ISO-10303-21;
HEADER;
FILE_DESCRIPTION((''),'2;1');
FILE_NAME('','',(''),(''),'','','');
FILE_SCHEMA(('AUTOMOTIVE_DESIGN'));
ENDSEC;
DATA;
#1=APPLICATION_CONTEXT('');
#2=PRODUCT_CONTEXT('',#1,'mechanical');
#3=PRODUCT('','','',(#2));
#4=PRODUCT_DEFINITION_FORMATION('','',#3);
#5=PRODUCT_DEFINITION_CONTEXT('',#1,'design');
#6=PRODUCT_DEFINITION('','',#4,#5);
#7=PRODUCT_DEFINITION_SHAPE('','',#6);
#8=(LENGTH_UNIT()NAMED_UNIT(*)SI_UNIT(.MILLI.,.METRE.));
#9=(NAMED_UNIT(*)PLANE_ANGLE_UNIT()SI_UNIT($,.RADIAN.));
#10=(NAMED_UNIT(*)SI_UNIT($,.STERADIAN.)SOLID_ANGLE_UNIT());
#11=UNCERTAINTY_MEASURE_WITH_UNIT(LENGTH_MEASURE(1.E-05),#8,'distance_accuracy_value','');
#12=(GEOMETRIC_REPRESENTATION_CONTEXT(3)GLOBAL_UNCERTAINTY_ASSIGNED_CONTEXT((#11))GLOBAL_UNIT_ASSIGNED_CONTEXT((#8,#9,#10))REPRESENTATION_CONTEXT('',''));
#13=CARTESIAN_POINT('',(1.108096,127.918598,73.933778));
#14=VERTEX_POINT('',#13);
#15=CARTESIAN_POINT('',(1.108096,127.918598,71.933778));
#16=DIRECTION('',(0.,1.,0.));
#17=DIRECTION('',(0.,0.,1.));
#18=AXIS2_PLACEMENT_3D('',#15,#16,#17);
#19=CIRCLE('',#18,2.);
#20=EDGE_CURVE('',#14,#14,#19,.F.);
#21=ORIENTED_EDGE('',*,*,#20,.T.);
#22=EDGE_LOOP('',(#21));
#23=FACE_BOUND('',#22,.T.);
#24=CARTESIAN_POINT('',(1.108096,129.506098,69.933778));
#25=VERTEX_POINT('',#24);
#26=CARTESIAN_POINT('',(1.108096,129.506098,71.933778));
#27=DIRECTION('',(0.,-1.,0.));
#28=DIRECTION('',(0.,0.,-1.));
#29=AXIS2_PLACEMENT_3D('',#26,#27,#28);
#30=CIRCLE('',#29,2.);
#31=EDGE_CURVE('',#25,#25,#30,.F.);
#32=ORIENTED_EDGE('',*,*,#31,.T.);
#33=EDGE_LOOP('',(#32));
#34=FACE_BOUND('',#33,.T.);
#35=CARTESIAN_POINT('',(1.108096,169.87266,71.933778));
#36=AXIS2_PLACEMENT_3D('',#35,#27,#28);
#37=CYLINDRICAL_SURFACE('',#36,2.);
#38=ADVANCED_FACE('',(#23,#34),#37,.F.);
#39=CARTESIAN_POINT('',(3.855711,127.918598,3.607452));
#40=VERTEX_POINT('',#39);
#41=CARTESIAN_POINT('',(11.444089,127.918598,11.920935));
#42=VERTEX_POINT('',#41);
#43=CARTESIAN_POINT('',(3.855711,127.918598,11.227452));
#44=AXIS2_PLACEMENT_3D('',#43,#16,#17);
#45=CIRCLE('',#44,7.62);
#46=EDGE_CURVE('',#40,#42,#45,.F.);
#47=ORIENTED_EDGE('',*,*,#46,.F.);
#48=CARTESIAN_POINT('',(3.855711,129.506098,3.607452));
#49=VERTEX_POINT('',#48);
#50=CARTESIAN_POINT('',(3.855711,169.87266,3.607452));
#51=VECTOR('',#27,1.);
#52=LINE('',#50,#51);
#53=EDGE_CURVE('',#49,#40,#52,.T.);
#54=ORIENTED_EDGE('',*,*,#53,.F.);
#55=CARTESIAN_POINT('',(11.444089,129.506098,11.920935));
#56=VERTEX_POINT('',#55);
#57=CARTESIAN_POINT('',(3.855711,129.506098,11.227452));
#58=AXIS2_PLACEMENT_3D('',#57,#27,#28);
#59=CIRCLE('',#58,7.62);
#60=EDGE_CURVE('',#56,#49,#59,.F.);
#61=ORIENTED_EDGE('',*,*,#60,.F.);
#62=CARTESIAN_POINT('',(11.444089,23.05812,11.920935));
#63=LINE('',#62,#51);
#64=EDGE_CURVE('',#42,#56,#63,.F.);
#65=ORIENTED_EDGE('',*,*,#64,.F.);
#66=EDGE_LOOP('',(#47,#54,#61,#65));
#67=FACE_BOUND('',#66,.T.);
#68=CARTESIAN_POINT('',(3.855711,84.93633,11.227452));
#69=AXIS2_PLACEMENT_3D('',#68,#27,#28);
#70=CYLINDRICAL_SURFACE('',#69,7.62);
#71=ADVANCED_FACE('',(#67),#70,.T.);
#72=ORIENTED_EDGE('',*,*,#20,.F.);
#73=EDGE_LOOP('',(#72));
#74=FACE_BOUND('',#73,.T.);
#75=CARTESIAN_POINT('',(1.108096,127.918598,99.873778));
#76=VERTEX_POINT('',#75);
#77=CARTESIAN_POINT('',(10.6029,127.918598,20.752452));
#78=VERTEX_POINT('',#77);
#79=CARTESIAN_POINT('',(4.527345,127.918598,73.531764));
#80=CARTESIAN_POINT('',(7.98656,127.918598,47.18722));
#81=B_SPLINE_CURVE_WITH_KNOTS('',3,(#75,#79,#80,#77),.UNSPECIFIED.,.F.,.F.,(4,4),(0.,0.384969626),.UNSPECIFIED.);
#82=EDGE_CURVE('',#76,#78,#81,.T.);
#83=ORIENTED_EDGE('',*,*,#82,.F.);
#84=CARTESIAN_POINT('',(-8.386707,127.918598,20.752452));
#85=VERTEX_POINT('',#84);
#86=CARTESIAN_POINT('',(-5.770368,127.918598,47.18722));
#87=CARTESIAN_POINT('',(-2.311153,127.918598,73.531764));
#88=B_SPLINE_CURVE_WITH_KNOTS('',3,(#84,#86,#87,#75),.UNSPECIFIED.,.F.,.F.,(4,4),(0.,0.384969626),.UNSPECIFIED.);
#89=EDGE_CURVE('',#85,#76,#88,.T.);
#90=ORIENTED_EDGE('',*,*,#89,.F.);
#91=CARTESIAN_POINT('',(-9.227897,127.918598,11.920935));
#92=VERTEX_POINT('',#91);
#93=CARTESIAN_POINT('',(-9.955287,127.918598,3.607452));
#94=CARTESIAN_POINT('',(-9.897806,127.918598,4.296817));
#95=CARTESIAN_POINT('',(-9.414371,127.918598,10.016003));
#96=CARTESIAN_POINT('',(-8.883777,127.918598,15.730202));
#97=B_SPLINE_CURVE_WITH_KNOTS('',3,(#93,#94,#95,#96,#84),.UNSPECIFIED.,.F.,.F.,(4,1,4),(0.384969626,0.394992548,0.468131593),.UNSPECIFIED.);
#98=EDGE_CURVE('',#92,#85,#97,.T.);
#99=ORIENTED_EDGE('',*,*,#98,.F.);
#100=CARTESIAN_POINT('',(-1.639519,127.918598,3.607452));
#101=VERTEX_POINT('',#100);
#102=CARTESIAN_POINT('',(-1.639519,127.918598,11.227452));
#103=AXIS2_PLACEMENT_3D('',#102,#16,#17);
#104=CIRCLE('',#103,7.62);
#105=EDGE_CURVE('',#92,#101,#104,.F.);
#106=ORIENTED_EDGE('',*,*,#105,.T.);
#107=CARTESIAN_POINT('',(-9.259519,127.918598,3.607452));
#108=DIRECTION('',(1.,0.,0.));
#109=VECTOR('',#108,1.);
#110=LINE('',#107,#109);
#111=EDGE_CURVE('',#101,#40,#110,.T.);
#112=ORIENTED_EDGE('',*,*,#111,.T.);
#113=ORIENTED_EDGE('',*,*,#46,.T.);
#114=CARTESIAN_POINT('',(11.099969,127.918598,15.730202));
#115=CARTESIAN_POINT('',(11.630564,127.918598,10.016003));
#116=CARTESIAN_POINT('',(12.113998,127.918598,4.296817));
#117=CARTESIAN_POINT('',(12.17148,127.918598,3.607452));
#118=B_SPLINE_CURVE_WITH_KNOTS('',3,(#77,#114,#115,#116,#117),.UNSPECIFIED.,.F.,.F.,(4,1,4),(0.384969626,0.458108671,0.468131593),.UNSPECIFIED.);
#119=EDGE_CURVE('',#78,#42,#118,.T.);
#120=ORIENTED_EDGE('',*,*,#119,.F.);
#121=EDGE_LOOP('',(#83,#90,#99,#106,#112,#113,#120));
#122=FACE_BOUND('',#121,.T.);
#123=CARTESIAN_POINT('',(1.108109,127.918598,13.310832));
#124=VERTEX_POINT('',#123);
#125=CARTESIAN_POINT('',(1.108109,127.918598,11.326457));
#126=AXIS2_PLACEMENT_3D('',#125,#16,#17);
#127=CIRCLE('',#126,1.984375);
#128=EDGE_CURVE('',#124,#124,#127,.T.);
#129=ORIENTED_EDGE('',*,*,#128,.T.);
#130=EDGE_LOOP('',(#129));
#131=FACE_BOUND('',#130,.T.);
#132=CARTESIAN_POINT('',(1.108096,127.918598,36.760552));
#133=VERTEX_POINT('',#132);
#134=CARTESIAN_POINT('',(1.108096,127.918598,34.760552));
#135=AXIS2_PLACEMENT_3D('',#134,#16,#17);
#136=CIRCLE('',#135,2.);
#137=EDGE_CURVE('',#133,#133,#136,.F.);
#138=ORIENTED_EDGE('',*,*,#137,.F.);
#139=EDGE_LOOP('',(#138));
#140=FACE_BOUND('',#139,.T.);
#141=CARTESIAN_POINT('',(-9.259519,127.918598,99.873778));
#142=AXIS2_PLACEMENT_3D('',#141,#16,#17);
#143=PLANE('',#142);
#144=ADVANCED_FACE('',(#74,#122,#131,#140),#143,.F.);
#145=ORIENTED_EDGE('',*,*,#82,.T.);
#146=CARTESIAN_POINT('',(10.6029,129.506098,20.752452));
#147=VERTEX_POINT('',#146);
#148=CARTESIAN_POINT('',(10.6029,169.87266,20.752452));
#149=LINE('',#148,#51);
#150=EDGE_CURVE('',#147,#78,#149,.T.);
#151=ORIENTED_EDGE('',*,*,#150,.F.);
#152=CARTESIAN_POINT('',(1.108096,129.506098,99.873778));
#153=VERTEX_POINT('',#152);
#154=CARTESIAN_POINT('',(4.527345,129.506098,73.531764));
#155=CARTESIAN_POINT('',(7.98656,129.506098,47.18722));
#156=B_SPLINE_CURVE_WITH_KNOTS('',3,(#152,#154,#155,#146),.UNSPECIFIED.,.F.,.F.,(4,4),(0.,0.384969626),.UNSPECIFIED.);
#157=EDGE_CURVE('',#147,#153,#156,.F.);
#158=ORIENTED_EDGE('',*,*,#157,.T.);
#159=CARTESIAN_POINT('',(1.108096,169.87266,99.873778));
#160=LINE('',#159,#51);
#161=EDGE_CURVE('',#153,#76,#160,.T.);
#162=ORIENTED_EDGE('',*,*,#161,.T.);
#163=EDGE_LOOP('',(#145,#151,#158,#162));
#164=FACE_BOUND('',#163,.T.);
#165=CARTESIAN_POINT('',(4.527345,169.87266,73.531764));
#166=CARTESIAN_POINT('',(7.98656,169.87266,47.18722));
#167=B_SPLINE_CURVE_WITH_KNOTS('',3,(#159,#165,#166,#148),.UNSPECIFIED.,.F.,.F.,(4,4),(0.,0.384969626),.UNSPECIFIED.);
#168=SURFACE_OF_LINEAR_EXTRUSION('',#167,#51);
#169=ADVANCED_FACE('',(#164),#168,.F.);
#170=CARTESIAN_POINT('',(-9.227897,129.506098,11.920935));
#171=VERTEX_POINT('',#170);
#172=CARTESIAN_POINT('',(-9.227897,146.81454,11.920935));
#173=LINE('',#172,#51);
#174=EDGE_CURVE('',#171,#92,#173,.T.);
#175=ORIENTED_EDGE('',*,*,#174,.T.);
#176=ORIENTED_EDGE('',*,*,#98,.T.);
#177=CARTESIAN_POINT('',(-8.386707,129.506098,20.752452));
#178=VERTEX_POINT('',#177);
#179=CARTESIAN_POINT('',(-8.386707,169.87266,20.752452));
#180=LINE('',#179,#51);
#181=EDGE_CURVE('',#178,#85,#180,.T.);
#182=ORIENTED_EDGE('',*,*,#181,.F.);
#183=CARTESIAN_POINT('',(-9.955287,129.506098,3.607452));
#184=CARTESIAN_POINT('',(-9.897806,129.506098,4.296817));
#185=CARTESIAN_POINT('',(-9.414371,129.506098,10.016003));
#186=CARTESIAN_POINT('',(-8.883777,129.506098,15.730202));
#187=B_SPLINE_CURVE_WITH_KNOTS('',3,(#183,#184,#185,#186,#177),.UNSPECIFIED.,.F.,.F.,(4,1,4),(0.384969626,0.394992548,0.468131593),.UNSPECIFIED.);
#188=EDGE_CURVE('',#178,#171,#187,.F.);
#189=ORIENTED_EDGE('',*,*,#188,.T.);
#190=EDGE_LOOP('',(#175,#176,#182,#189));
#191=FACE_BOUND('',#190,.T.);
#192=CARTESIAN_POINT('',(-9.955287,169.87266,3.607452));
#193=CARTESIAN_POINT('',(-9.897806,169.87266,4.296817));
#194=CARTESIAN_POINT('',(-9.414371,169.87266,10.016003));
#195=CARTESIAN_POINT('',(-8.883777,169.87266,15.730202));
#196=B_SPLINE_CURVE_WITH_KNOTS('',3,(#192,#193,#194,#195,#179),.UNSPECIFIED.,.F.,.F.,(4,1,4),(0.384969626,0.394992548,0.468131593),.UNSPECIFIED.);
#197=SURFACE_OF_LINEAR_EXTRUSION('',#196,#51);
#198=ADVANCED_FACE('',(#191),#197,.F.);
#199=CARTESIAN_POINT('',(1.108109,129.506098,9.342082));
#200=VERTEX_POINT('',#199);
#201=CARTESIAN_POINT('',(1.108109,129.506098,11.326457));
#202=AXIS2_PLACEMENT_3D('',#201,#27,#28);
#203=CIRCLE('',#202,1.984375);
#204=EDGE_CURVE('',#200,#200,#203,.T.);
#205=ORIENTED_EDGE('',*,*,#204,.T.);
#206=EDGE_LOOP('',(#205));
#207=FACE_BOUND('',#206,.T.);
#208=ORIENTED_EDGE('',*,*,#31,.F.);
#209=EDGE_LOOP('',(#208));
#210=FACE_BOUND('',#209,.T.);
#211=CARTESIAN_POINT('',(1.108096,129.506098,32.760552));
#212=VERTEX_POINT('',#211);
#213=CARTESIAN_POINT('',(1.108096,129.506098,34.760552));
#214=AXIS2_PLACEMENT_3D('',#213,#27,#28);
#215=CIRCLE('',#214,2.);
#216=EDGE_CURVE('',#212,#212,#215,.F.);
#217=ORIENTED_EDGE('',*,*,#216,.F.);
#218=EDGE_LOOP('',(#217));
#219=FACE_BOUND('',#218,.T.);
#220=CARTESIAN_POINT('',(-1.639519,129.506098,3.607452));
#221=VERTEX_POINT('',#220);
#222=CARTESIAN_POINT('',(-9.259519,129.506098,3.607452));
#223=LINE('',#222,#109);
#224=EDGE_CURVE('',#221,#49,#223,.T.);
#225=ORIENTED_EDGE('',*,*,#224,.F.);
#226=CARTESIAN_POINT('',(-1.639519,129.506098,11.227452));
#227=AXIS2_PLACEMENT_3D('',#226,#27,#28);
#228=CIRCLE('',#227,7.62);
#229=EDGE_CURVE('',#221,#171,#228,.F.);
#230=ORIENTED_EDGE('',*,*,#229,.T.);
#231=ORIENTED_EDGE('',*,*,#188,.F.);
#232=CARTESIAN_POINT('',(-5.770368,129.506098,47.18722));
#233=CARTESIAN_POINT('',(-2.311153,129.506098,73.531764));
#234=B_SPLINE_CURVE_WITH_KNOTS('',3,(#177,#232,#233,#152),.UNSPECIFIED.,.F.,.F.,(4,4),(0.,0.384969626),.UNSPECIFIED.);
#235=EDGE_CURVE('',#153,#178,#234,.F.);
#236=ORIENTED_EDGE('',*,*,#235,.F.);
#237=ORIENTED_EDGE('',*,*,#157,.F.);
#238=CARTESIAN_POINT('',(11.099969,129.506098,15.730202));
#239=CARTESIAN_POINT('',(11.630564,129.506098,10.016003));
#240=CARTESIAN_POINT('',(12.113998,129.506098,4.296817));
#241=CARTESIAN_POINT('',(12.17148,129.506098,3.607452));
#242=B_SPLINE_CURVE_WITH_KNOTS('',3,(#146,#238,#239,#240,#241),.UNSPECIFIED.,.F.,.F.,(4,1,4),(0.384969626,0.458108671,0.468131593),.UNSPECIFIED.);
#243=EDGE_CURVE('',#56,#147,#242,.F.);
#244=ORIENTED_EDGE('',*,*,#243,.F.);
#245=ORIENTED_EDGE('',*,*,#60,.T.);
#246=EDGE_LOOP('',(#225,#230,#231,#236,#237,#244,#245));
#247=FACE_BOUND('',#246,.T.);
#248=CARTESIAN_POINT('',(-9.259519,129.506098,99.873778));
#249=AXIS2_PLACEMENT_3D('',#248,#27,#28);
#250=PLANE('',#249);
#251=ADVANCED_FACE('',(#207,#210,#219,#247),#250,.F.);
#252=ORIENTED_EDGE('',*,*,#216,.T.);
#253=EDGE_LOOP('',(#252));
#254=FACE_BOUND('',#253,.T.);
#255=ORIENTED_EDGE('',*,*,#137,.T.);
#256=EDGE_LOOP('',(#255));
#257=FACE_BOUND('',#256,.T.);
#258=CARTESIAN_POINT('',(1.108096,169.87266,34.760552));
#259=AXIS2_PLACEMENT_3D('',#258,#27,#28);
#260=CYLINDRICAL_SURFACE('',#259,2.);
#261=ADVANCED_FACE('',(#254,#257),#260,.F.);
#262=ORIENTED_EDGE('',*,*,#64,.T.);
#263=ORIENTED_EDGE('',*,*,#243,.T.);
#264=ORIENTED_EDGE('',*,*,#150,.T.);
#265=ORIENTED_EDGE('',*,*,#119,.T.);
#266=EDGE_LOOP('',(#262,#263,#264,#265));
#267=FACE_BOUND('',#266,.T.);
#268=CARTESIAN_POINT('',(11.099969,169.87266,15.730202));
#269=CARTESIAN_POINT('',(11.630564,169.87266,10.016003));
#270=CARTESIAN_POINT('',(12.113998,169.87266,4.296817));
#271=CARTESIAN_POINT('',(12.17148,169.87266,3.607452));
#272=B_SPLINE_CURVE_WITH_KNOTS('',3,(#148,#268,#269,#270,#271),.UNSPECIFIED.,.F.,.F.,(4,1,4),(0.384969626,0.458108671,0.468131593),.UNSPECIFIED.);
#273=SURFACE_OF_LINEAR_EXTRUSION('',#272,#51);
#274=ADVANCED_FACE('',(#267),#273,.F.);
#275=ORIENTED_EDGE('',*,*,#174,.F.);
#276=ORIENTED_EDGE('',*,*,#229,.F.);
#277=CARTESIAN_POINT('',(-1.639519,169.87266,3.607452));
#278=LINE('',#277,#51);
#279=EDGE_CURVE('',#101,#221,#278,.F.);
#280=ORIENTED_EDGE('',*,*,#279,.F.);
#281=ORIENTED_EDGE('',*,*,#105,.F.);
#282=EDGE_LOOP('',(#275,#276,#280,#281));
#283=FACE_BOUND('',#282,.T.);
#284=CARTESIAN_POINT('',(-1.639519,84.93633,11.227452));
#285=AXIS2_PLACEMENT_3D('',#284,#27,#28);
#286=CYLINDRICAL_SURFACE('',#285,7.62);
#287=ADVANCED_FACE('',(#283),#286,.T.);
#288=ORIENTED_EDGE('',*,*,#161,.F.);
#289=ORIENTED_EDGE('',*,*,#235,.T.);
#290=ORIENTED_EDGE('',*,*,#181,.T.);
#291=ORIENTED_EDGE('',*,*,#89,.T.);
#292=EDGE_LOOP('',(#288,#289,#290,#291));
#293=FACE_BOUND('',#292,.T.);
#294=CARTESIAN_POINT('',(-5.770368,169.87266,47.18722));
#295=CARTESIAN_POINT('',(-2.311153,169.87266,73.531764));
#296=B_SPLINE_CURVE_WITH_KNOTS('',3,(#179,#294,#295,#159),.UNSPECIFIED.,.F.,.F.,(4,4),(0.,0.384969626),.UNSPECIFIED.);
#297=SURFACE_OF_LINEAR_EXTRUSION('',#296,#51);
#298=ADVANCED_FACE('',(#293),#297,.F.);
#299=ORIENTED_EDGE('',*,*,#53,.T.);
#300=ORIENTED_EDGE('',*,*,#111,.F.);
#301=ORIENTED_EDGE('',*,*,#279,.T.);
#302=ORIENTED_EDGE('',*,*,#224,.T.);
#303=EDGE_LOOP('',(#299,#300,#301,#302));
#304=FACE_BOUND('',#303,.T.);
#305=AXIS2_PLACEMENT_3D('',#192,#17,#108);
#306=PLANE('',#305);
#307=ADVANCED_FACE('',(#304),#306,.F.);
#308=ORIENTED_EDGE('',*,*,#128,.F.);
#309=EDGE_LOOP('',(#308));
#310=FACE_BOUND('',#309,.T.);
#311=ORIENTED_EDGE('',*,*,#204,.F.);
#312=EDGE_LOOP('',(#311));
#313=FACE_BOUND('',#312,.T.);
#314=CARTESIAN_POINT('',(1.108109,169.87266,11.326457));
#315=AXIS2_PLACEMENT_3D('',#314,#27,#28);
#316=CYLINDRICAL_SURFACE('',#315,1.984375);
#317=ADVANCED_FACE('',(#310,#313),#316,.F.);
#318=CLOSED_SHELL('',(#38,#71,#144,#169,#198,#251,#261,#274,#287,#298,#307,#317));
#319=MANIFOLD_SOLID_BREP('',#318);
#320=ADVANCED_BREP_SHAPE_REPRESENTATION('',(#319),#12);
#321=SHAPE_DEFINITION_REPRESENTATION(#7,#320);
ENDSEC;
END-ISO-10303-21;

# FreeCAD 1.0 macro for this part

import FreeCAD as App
import Part
import Sketcher
Q = App.Units.Quantity


def edges_at(feature, points):
    """Names of the edges that pass closest to the given points."""
    edges = feature.Shape.Edges
    near = lambda p: min(range(len(edges)), key=lambda i: edges[i].distToShape(Part.Vertex(*p))[0])
    return sorted({f"Edge{near(p) + 1}" for p in points})

doc = App.newDocument("Part")
body = doc.addObject("PartDesign::Body", "Body")

# Sketch on XZ plane
sketch1 = body.newObject("Sketcher::SketchObject", "Sketch")
sketch1.AttachmentSupport = (doc.getObject("XZ_Plane"), [""])
sketch1.MapMode = "FlatFace"
sketch1.addGeometry([
    Part.LineSegment(App.Vector(12.17148, 3.607452, 0), App.Vector(-9.955287, 3.607452, 0)),
    Part.BSplineCurve([App.Vector(1.108096, 99.873778, 0), App.Vector(-2.960764, 68.527136, 0), App.Vector(-7.176479, 36.491002, 0), App.Vector(-9.897806, 4.296817, 0), App.Vector(-9.955287, 3.607452, 0)], [4, 1, 4], [0, 0.458108671, 0.468131593], False, 3, [1, 1, 1, 1, 1], False),
    Part.BSplineCurve([App.Vector(1.108096, 99.873778, 0), App.Vector(5.176956, 68.527136, 0), App.Vector(9.392672, 36.491002, 0), App.Vector(12.113998, 4.296817, 0), App.Vector(12.17148, 3.607452, 0)], [4, 1, 4], [0, 0.458108671, 0.468131593], False, 3, [1, 1, 1, 1, 1], False),
    Part.Circle(App.Vector(1.108109, 11.326457, 0), App.Vector(0, 0, 1), 1.984375),
], False)
sketch1.addConstraint([
    Sketcher.Constraint("Block", 1),
    Sketcher.Constraint("Block", 2),
    Sketcher.Constraint("Coincident", 0, 2, 1, 2),
    Sketcher.Constraint("Coincident", 2, 2, 0, 1),
    Sketcher.Constraint("Diameter", 3, Q("0.15625 in")),
    Sketcher.Constraint("DistanceX", -1, 1, 3, 3, 1.108109),
    Sketcher.Constraint("DistanceY", -1, 1, 3, 3, 11.326457),
])
pad1 = body.newObject("PartDesign::Pad", "Pad")
pad1.Profile = sketch1
pad1.Length = Q("6.6879 in")
pad1.Reversed = True

# Sketch on XZ plane
sketch2 = body.newObject("Sketcher::SketchObject", "Sketch001")
sketch2.AttachmentSupport = (doc.getObject("XZ_Plane"), [""])
sketch2.MapMode = "FlatFace"
sketch2.AttachmentOffset = App.Placement(App.Vector(0, 0, -6.6879 * 25.4), App.Rotation())
sketch2.addGeometry([
    Part.LineSegment(App.Vector(25.80852, 3.607452, 0), App.Vector(-9.955287, 3.607452, 0)),
    Part.LineSegment(App.Vector(-9.955287, 3.607452, 0), App.Vector(-9.955287, 26.312457, 0)),
    Part.LineSegment(App.Vector(-9.955287, 26.312457, 0), App.Vector(25.80852, 26.312457, 0)),
    Part.LineSegment(App.Vector(25.80852, 26.312457, 0), App.Vector(25.80852, 3.607452, 0)),
], False)
sketch2.addConstraint([
    Sketcher.Constraint("Coincident", 0, 2, 1, 1),
    Sketcher.Constraint("Coincident", 1, 2, 2, 1),
    Sketcher.Constraint("Coincident", 2, 2, 3, 1),
    Sketcher.Constraint("Coincident", 3, 2, 0, 1),
    Sketcher.Constraint("Horizontal", 0),
    Sketcher.Constraint("Vertical", 1),
    Sketcher.Constraint("Horizontal", 2),
    Sketcher.Constraint("Vertical", 3),
    Sketcher.Constraint("DistanceX", 0, 2, 0, 1, 35.763807),
    Sketcher.Constraint("DistanceY", 1, 1, 1, 2, 22.705005),
    Sketcher.Constraint("DistanceY", -1, 1, 0, 2, 3.607452),
    Sketcher.Constraint("DistanceX", -1, 1, 2, 2, 25.80852),
])
pocket1 = body.newObject("PartDesign::Pocket", "Pocket")
pocket1.Profile = sketch2
pocket1.Length = Q("0.9078 in")
pocket1.Reversed = True

# Sketch on XZ plane
sketch3 = body.newObject("Sketcher::SketchObject", "Sketch002")
sketch3.AttachmentSupport = (doc.getObject("XZ_Plane"), [""])
sketch3.MapMode = "FlatFace"
sketch3.addGeometry([
    Part.LineSegment(App.Vector(25.80852, 3.607452, 0), App.Vector(-9.955287, 3.607452, 0)),
    Part.LineSegment(App.Vector(-9.955287, 3.607452, 0), App.Vector(-9.955287, 26.312457, 0)),
    Part.LineSegment(App.Vector(-9.955287, 26.312457, 0), App.Vector(25.80852, 26.312457, 0)),
    Part.LineSegment(App.Vector(25.80852, 26.312457, 0), App.Vector(25.80852, 3.607452, 0)),
], False)
sketch3.addConstraint([
    Sketcher.Constraint("Coincident", 0, 2, 1, 1),
    Sketcher.Constraint("Coincident", 1, 2, 2, 1),
    Sketcher.Constraint("Coincident", 2, 2, 3, 1),
    Sketcher.Constraint("Coincident", 3, 2, 0, 1),
    Sketcher.Constraint("Horizontal", 0),
    Sketcher.Constraint("Vertical", 1),
    Sketcher.Constraint("Horizontal", 2),
    Sketcher.Constraint("Vertical", 3),
    Sketcher.Constraint("DistanceX", 0, 2, 0, 1, 35.763807),
    Sketcher.Constraint("DistanceY", 1, 1, 1, 2, 22.705005),
    Sketcher.Constraint("DistanceY", -1, 1, 0, 2, 3.607452),
    Sketcher.Constraint("DistanceX", -1, 1, 2, 2, 25.80852),
])
pocket2 = body.newObject("PartDesign::Pocket", "Pocket001")
pocket2.Profile = sketch3
pocket2.Length = Q("0.9078 in")
doc.recompute()

fillet = body.newObject("PartDesign::Fillet", "Fillet")
fillet.Base = (pocket2, edges_at(pocket2, [
    (-7.824, 11.529, 26.312),
    (10.04, 11.529, 26.312),
    (-9.955, 84.936, 3.607),
    (12.171, 84.936, 3.607),
    (-7.824, 158.344, 26.312),
    (10.04, 158.344, 26.312),
]))
fillet.Radius = Q("0.3 in")

# Sketch on XZ plane
sketch4 = body.newObject("Sketcher::SketchObject", "Sketch003")
sketch4.AttachmentSupport = (doc.getObject("XZ_Plane"), [""])
sketch4.MapMode = "FlatFace"
sketch4.addGeometry([
    Part.Circle(App.Vector(1.108096, 71.933778, 0), App.Vector(0, 0, 1), 2),
    Part.Circle(App.Vector(1.108096, 34.760552, 0), App.Vector(0, 0, 1), 2),
], False)
sketch4.addConstraint([
    Sketcher.Constraint("Equal", 0, 1),
    Sketcher.Constraint("Vertical", 0, 3, 1, 3),
    Sketcher.Constraint("Diameter", 0, 4.0),
    Sketcher.Constraint("DistanceY", -1, 1, 0, 3, 71.933778),
    Sketcher.Constraint("DistanceX", -1, 1, 0, 3, 1.108096),
    Sketcher.Constraint("DistanceY", -1, 1, 1, 3, 34.760552),
])
pocket3 = body.newObject("PartDesign::Pocket", "Pocket002")
pocket3.Profile = sketch4
pocket3.Type = "ThroughAll"
pocket3.Midplane = True

# Sketch on YZ plane
sketch5 = body.newObject("Sketcher::SketchObject", "Sketch004")
sketch5.AttachmentSupport = (doc.getObject("YZ_Plane"), [""])
sketch5.MapMode = "FlatFace"
sketch5.addGeometry([
    Part.LineSegment(App.Vector(127.918598, 99.873778, 0), App.Vector(0, 99.873778, 0)),  # 0
    Part.LineSegment(App.Vector(0, 99.873778, 0), App.Vector(0, 3.607452, 0)),  # 1
    Part.LineSegment(App.Vector(0, 3.607452, 0), App.Vector(127.918598, 3.607452, 0)),  # 2
    Part.LineSegment(App.Vector(127.918598, 3.607452, 0), App.Vector(127.918598, 99.873778, 0)),  # 3
    Part.LineSegment(App.Vector(169.87266, 99.873778, 0), App.Vector(129.506098, 99.873778, 0)),  # 4
    Part.LineSegment(App.Vector(129.506098, 99.873778, 0), App.Vector(129.506098, 3.607452, 0)),  # 5
    Part.LineSegment(App.Vector(129.506098, 3.607452, 0), App.Vector(169.87266, 3.607452, 0)),  # 6
    Part.LineSegment(App.Vector(169.87266, 3.607452, 0), App.Vector(169.87266, 99.873778, 0)),  # 7
], False)
sketch5.addConstraint([
    Sketcher.Constraint("Coincident", 0, 2, 1, 1),
    Sketcher.Constraint("Coincident", 1, 2, 2, 1),
    Sketcher.Constraint("Coincident", 2, 2, 3, 1),
    Sketcher.Constraint("Coincident", 3, 2, 0, 1),
    Sketcher.Constraint("Coincident", 4, 2, 5, 1),
    Sketcher.Constraint("Coincident", 5, 2, 6, 1),
    Sketcher.Constraint("Coincident", 6, 2, 7, 1),
    Sketcher.Constraint("Coincident", 7, 2, 4, 1),
    Sketcher.Constraint("Horizontal", 0),
    Sketcher.Constraint("Vertical", 1),
    Sketcher.Constraint("Horizontal", 2),
    Sketcher.Constraint("Vertical", 3),
    Sketcher.Constraint("Horizontal", 4),
    Sketcher.Constraint("Vertical", 5),
    Sketcher.Constraint("Horizontal", 6),
    Sketcher.Constraint("Vertical", 7),
    Sketcher.Constraint("PointOnObject", 0, 2, -2),
    Sketcher.Constraint("Horizontal", 3, 2, 4, 2),
    Sketcher.Constraint("Horizontal", 2, 2, 5, 2),
    Sketcher.Constraint("DistanceX", 3, 2, 4, 2, Q("0.0625 in")),
    Sketcher.Constraint("DistanceX", -1, 1, 6, 2, Q("6.6879 in")),
    Sketcher.Constraint("DistanceX", 0, 2, 0, 1, 127.918598),
    Sketcher.Constraint("DistanceY", 1, 2, 1, 1, 96.266327),
    Sketcher.Constraint("DistanceY", -1, 1, 0, 2, 99.873778),
])
pocket4 = body.newObject("PartDesign::Pocket", "Pocket003")
pocket4.Profile = sketch5
pocket4.Type = "ThroughAll"
pocket4.Midplane = True

doc.recompute()
